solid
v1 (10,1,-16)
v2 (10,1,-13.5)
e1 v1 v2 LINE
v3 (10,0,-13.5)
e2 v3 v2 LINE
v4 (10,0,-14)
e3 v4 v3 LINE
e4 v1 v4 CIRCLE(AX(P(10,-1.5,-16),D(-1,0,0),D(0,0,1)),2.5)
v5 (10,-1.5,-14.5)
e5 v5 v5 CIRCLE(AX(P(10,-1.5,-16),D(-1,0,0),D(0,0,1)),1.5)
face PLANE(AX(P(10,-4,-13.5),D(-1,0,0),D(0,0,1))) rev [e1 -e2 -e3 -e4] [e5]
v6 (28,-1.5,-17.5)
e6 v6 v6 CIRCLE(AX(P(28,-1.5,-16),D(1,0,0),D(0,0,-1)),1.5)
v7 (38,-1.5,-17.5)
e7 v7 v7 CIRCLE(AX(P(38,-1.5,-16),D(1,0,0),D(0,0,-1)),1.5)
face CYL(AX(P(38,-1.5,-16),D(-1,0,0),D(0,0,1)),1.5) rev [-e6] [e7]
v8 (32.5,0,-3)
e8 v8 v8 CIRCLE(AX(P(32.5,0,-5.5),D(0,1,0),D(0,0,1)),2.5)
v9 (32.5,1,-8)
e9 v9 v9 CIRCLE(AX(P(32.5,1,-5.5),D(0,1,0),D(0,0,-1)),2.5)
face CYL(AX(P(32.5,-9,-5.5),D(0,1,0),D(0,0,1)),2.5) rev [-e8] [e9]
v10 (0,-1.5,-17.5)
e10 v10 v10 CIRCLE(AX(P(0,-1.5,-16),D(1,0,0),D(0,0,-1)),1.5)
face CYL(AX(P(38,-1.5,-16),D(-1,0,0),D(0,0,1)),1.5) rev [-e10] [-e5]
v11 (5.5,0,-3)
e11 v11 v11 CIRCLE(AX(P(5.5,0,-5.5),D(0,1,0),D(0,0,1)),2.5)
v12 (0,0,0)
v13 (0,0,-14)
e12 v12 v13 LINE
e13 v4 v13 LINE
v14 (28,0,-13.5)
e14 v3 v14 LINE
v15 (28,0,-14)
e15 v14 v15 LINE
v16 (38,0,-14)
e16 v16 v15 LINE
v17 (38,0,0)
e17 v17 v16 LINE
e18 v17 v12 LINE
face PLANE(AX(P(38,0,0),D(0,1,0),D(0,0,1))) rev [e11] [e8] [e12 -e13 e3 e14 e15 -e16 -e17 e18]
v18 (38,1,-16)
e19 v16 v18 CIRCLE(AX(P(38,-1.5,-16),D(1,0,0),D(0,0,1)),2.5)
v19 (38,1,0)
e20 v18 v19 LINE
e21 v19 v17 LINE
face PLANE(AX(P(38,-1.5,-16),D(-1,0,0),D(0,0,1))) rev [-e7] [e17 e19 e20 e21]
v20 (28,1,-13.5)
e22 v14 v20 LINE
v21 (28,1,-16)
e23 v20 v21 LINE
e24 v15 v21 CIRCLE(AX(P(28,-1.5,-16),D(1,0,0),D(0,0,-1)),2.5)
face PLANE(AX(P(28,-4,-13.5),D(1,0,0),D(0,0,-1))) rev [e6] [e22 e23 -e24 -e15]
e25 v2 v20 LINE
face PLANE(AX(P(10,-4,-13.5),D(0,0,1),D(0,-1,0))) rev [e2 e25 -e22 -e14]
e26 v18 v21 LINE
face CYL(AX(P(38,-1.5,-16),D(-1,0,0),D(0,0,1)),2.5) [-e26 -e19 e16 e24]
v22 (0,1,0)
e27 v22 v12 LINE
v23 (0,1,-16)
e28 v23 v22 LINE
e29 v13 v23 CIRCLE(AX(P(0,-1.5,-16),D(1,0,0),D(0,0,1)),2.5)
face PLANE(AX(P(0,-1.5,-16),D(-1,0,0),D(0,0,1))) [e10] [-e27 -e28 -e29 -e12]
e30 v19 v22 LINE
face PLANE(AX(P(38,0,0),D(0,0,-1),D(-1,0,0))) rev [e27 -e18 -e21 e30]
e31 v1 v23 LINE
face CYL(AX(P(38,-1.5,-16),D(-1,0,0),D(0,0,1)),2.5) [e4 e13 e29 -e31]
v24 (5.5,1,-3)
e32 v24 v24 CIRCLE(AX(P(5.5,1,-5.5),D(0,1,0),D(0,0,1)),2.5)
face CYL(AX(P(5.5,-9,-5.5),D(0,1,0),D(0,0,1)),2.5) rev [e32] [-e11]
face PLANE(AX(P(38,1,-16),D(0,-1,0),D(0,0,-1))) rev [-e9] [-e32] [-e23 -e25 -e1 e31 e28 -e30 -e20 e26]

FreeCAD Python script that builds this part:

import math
import FreeCAD as App
import Part
import Sketcher
from FreeCAD import Vector
Q = App.Units.Quantity

doc = App.newDocument("Part")
body = doc.addObject("PartDesign::Body", "Body")

# Sketch on YZ plane
sketch1 = body.newObject("Sketcher::SketchObject", "Sketch")
sketch1.AttachmentSupport = (doc.getObject("YZ_Plane"), [""])
sketch1.MapMode = "FlatFace"
sketch1.addGeometry(Part.LineSegment(Vector(1, -16, 0), Vector(1, 0, 0)), False)
sketch1.addGeometry(Part.LineSegment(Vector(1, 0, 0), Vector(0, 0, 0)), False)
sketch1.addGeometry(Part.LineSegment(Vector(0, 0, 0), Vector(0, -14, 0)), False)
sketch1.addGeometry(Part.ArcOfCircle(Part.Circle(Vector(-1.5, -16, 0), Vector(0, 0, 1), 2.5), math.radians(53), math.radians(360)), False)
sketch1.addGeometry(Part.Circle(Vector(-1.5, -16, 0), Vector(0, 0, 1), 1.5), False)
sketch1.addConstraint(Sketcher.Constraint("Coincident", 0, 2, 1, 1))
sketch1.addConstraint(Sketcher.Constraint("Coincident", 1, 2, 2, 1))
sketch1.addConstraint(Sketcher.Constraint("Coincident", 2, 2, 3, 1))
sketch1.addConstraint(Sketcher.Constraint("Tangent", 3, 2, 0, 1))
sketch1.addConstraint(Sketcher.Constraint("Vertical", 0))
sketch1.addConstraint(Sketcher.Constraint("Horizontal", 1))
sketch1.addConstraint(Sketcher.Constraint("Vertical", 2))
sketch1.addConstraint(Sketcher.Constraint("Coincident", 1, 2, -1, 1))
sketch1.addConstraint(Sketcher.Constraint("Coincident", 4, 3, 3, 3))
sketch1.addConstraint(Sketcher.Constraint("Diameter", 4, Q("3 mm")))
sketch1.addConstraint(Sketcher.Constraint("Radius", 3, Q("2.5 mm")))
sketch1.addConstraint(Sketcher.Constraint("DistanceX", 1, 2, 1, 1, Q("1 mm")))
sketch1.addConstraint(Sketcher.Constraint("DistanceY", 0, 1, 0, 2, Q("16 mm")))
pad1 = body.newObject("PartDesign::Pad", "Pad")
pad1.Profile = sketch1
pad1.Length = 38

# Sketch on XZ plane
sketch2 = body.newObject("Sketcher::SketchObject", "Sketch001")
sketch2.AttachmentSupport = (doc.getObject("XZ_Plane"), [""])
sketch2.MapMode = "FlatFace"
sketch2.AttachmentOffset = App.Placement(Vector(0, 0, -1), App.Rotation())
sketch2.addGeometry(Part.LineSegment(Vector(10, -18, 0), Vector(10, -14, 0)), False)
sketch2.addGeometry(Part.LineSegment(Vector(10, -14, 0), Vector(28, -14, 0)), False)
sketch2.addGeometry(Part.LineSegment(Vector(28, -14, 0), Vector(28, -18, 0)), False)
sketch2.addGeometry(Part.LineSegment(Vector(28, -18, 0), Vector(10, -18, 0)), False)
sketch2.addConstraint(Sketcher.Constraint("Coincident", 0, 2, 1, 1))
sketch2.addConstraint(Sketcher.Constraint("Coincident", 1, 2, 2, 1))
sketch2.addConstraint(Sketcher.Constraint("Coincident", 2, 2, 3, 1))
sketch2.addConstraint(Sketcher.Constraint("Coincident", 3, 2, 0, 1))
sketch2.addConstraint(Sketcher.Constraint("Vertical", 0))
sketch2.addConstraint(Sketcher.Constraint("Horizontal", 1))
sketch2.addConstraint(Sketcher.Constraint("Vertical", 2))
sketch2.addConstraint(Sketcher.Constraint("Horizontal", 3))
sketch2.addConstraint(Sketcher.Constraint("DistanceX", 1, 1, 1, 2, Q("18 mm")))
sketch2.addConstraint(Sketcher.Constraint("DistanceY", 0, 1, 0, 2, Q("5 mm")))
sketch2.addConstraint(Sketcher.Constraint("DistanceX", -1, 1, 0, 2, Q("10 mm")))
sketch2.addConstraint(Sketcher.Constraint("DistanceY", 0, 2, -1, 1, Q("13.5 mm")))
pocket1 = body.newObject("PartDesign::Pocket", "Pocket")
pocket1.Profile = sketch2
pocket1.Type = "ThroughAll"
pocket1.Reversed = True

# Sketch on XZ plane
sketch3 = body.newObject("Sketcher::SketchObject", "Sketch002")
sketch3.AttachmentSupport = (doc.getObject("XZ_Plane"), [""])
sketch3.MapMode = "FlatFace"
sketch3.AttachmentOffset = App.Placement(Vector(0, 0, -1), App.Rotation())
sketch3.addGeometry(Part.Circle(Vector(5.5, -5.5, 0), Vector(0, 0, 1), 2.5), False)
sketch3.addGeometry(Part.Circle(Vector(32.5, -5.5, 0), Vector(0, 0, 1), 2.5), False)
sketch3.addConstraint(Sketcher.Constraint("Equal", 0, 1))
sketch3.addConstraint(Sketcher.Constraint("Horizontal", 0, 3, 1, 3))
sketch3.addConstraint(Sketcher.Constraint("Diameter", 0, Q("5 mm")))
sketch3.addConstraint(Sketcher.Constraint("DistanceX", 0, 3, 1, 3, Q("27 mm")))
sketch3.addConstraint(Sketcher.Constraint("DistanceX", -1, 1, 0, 3, Q("5.5 mm")))
sketch3.addConstraint(Sketcher.Constraint("DistanceY", 0, 3, -1, 1, Q("5.5 mm")))
pocket2 = body.newObject("PartDesign::Pocket", "Pocket001")
pocket2.Profile = sketch3
pocket2.Length = 10
pocket2.Reversed = True

doc.recompute()
